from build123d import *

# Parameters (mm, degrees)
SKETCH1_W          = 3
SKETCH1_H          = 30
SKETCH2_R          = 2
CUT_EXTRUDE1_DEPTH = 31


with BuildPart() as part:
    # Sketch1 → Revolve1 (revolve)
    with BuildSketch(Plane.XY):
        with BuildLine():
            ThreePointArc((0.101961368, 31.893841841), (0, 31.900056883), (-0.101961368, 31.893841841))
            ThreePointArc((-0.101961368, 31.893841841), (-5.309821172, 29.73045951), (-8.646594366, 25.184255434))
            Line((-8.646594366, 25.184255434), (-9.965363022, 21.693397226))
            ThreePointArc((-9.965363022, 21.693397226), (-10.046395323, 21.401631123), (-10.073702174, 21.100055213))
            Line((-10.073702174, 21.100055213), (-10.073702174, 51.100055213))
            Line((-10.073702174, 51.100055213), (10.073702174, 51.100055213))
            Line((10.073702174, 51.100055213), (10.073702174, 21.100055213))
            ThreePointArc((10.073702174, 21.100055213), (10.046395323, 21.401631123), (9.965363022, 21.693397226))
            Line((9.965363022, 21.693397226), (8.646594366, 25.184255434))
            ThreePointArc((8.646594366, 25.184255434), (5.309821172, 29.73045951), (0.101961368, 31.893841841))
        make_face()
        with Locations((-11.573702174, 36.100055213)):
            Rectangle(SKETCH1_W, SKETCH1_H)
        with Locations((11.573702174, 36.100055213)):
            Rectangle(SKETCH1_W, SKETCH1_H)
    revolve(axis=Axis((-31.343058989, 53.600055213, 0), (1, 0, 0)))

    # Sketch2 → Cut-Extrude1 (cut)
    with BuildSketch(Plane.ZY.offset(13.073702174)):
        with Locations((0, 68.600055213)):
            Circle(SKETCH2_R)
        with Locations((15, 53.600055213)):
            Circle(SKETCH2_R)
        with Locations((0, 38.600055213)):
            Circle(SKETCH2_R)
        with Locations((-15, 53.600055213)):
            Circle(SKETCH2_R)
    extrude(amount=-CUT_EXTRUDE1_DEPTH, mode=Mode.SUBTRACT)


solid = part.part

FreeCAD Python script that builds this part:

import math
import FreeCAD as App
import Part
import Sketcher
from FreeCAD import Vector

doc = App.newDocument("Part")
body = doc.addObject("PartDesign::Body", "Body")

# Sketch on XY plane
sketch1 = body.newObject("Sketcher::SketchObject", "Sketch")
sketch1.AttachmentSupport = (doc.getObject("XY_Plane"), [""])
sketch1.MapMode = "FlatFace"
sketch1.addGeometry(Part.ArcOfCircle(Part.Circle(Vector(0, 31.06, 0), Vector(0, 0, 1), 0.84), math.radians(83.02), math.radians(96.98)), False)
sketch1.addGeometry(Part.ArcOfCircle(Part.Circle(Vector(-1.17, 21.47, 0), Vector(0, 0, 1), 10.5), math.radians(21), math.radians(83)), False)
sketch1.addGeometry(Part.LineSegment(Vector(8.65, 25.18, 0), Vector(9.97, 21.69, 0)), False)
sketch1.addGeometry(Part.ArcOfCircle(Part.Circle(Vector(8.39, 21.1, 0), Vector(0, 0, 1), 1.68), math.radians(0), math.radians(21)), False)
sketch1.addGeometry(Part.LineSegment(Vector(10.07, 21.1, 0), Vector(13.07, 21.1, 0)), False)
sketch1.addGeometry(Part.LineSegment(Vector(13.07, 21.1, 0), Vector(13.07, 51.1, 0)), False)
sketch1.addGeometry(Part.LineSegment(Vector(13.07, 51.1, 0), Vector(-13.07, 51.1, 0)), False)
sketch1.addGeometry(Part.LineSegment(Vector(-13.07, 51.1, 0), Vector(-13.07, 21.1, 0)), False)
sketch1.addGeometry(Part.LineSegment(Vector(-13.07, 21.1, 0), Vector(-10.07, 21.1, 0)), False)
sketch1.addGeometry(Part.ArcOfCircle(Part.Circle(Vector(-8.39, 21.1, 0), Vector(0, 0, 1), 1.68), math.radians(159), math.radians(180)), False)
sketch1.addGeometry(Part.LineSegment(Vector(-9.97, 21.69, 0), Vector(-8.65, 25.18, 0)), False)
sketch1.addGeometry(Part.ArcOfCircle(Part.Circle(Vector(1.17, 21.47, 0), Vector(0, 0, 1), 10.5), math.radians(97), math.radians(159)), False)
sketch1.addGeometry(Part.LineSegment(Vector(-13.07, 53.6, 0), Vector(13.07, 53.6, 0)), True)  # axis
sketch1.addConstraint(Sketcher.Constraint("Tangent", 0, 1, 1, 2))
sketch1.addConstraint(Sketcher.Constraint("Tangent", 1, 1, 2, 1))
sketch1.addConstraint(Sketcher.Constraint("Tangent", 2, 2, 3, 2))
sketch1.addConstraint(Sketcher.Constraint("Coincident", 3, 1, 4, 1))
sketch1.addConstraint(Sketcher.Constraint("Coincident", 4, 2, 5, 1))
sketch1.addConstraint(Sketcher.Constraint("Coincident", 5, 2, 6, 1))
sketch1.addConstraint(Sketcher.Constraint("Coincident", 6, 2, 7, 1))
sketch1.addConstraint(Sketcher.Constraint("Coincident", 7, 2, 8, 1))
sketch1.addConstraint(Sketcher.Constraint("Coincident", 8, 2, 9, 2))
sketch1.addConstraint(Sketcher.Constraint("Tangent", 9, 1, 10, 1))
sketch1.addConstraint(Sketcher.Constraint("Tangent", 10, 2, 11, 2))
sketch1.addConstraint(Sketcher.Constraint("Tangent", 11, 1, 0, 2))
sketch1.addConstraint(Sketcher.Constraint("Horizontal", 4))
sketch1.addConstraint(Sketcher.Constraint("Vertical", 5))
sketch1.addConstraint(Sketcher.Constraint("Horizontal", 6))
sketch1.addConstraint(Sketcher.Constraint("Vertical", 7))
sketch1.addConstraint(Sketcher.Constraint("Horizontal", 8))
sketch1.addConstraint(Sketcher.Constraint("Horizontal", 12))
sketch1.addConstraint(Sketcher.Constraint("Equal", 3, 9))
sketch1.addConstraint(Sketcher.Constraint("Equal", 1, 11))
sketch1.addConstraint(Sketcher.Constraint("Symmetric", 3, 3, 9, 3, -2))
sketch1.addConstraint(Sketcher.Constraint("Symmetric", 1, 3, 11, 3, -2))
sketch1.addConstraint(Sketcher.Constraint("Symmetric", 4, 2, 7, 2, -2))
sketch1.addConstraint(Sketcher.Constraint("Horizontal", 9, 3, 3, 1))
sketch1.addConstraint(Sketcher.Constraint("Vertical", 7, 2, 12, 1))
sketch1.addConstraint(Sketcher.Constraint("Vertical", 5, 2, 12, 2))
sketch1.addConstraint(Sketcher.Constraint("DistanceX", 4, 1, 4, 2, 3.0))
sketch1.addConstraint(Sketcher.Constraint("DistanceY", 5, 1, 5, 2, 30.0))
sketch1.addConstraint(Sketcher.Constraint("DistanceY", 6, 2, 12, 1, 2.5))
sketch1.addConstraint(Sketcher.Constraint("Radius", 3, 1.67895))
sketch1.addConstraint(Sketcher.Constraint("Radius", 0, 0.839475))
sketch1.addConstraint(Sketcher.Constraint("Radius", 1, 10.496916))
sketch1.addConstraint(Sketcher.Constraint("DistanceY", 3, 3, 1, 1, 4.0842))
sketch1.addConstraint(Sketcher.Constraint("DistanceX", 6, 2, 6, 1, 26.147404))
sketch1.addConstraint(Sketcher.Constraint("DistanceY", -1, 1, 0, 3, 31.060582))
sketch1.addConstraint(Sketcher.Constraint("DistanceX", 1, 3, 3, 3, 9.56773))
revolution = body.newObject("PartDesign::Revolution", "Revolution")
revolution.Profile = sketch1
revolution.ReferenceAxis = (sketch1, ["Axis0"])
revolution.Angle = 360

# Sketch on YZ plane
sketch2 = body.newObject("Sketcher::SketchObject", "Sketch001")
sketch2.AttachmentSupport = (doc.getObject("YZ_Plane"), [""])
sketch2.MapMode = "FlatFace"
sketch2.AttachmentOffset = App.Placement(Vector(0, 0, -13.073702), App.Rotation())
sketch2.addGeometry(Part.Circle(Vector(68.6, 0, 0), Vector(0, 0, 1), 2), False)
sketch2.addGeometry(Part.Circle(Vector(53.6, 15, 0), Vector(0, 0, 1), 2), False)
sketch2.addGeometry(Part.Circle(Vector(38.6, 0, 0), Vector(0, 0, 1), 2), False)
sketch2.addGeometry(Part.Circle(Vector(53.6, -15, 0), Vector(0, 0, 1), 2), False)
sketch2.addConstraint(Sketcher.Constraint("Equal", 0, 1))
sketch2.addConstraint(Sketcher.Constraint("Equal", 1, 2))
sketch2.addConstraint(Sketcher.Constraint("Equal", 2, 3))
sketch2.addConstraint(Sketcher.Constraint("Symmetric", 1, 3, 3, 3, -1))
sketch2.addConstraint(Sketcher.Constraint("PointOnObject", 0, 3, -1))
sketch2.addConstraint(Sketcher.Constraint("PointOnObject", 2, 3, -1))
sketch2.addConstraint(Sketcher.Constraint("Diameter", 0, 4.0))
sketch2.addConstraint(Sketcher.Constraint("DistanceY", -1, 1, 1, 3, 15.0))
sketch2.addConstraint(Sketcher.Constraint("DistanceX", 1, 3, 0, 3, 15.0))
sketch2.addConstraint(Sketcher.Constraint("DistanceX", 2, 3, 1, 3, 15.0))
sketch2.addConstraint(Sketcher.Constraint("DistanceX", -1, 1, 0, 3, 68.600055))
pocket1 = body.newObject("PartDesign::Pocket", "Pocket")
pocket1.Profile = sketch2
pocket1.Length = 31
pocket1.Reversed = True

doc.recompute()
